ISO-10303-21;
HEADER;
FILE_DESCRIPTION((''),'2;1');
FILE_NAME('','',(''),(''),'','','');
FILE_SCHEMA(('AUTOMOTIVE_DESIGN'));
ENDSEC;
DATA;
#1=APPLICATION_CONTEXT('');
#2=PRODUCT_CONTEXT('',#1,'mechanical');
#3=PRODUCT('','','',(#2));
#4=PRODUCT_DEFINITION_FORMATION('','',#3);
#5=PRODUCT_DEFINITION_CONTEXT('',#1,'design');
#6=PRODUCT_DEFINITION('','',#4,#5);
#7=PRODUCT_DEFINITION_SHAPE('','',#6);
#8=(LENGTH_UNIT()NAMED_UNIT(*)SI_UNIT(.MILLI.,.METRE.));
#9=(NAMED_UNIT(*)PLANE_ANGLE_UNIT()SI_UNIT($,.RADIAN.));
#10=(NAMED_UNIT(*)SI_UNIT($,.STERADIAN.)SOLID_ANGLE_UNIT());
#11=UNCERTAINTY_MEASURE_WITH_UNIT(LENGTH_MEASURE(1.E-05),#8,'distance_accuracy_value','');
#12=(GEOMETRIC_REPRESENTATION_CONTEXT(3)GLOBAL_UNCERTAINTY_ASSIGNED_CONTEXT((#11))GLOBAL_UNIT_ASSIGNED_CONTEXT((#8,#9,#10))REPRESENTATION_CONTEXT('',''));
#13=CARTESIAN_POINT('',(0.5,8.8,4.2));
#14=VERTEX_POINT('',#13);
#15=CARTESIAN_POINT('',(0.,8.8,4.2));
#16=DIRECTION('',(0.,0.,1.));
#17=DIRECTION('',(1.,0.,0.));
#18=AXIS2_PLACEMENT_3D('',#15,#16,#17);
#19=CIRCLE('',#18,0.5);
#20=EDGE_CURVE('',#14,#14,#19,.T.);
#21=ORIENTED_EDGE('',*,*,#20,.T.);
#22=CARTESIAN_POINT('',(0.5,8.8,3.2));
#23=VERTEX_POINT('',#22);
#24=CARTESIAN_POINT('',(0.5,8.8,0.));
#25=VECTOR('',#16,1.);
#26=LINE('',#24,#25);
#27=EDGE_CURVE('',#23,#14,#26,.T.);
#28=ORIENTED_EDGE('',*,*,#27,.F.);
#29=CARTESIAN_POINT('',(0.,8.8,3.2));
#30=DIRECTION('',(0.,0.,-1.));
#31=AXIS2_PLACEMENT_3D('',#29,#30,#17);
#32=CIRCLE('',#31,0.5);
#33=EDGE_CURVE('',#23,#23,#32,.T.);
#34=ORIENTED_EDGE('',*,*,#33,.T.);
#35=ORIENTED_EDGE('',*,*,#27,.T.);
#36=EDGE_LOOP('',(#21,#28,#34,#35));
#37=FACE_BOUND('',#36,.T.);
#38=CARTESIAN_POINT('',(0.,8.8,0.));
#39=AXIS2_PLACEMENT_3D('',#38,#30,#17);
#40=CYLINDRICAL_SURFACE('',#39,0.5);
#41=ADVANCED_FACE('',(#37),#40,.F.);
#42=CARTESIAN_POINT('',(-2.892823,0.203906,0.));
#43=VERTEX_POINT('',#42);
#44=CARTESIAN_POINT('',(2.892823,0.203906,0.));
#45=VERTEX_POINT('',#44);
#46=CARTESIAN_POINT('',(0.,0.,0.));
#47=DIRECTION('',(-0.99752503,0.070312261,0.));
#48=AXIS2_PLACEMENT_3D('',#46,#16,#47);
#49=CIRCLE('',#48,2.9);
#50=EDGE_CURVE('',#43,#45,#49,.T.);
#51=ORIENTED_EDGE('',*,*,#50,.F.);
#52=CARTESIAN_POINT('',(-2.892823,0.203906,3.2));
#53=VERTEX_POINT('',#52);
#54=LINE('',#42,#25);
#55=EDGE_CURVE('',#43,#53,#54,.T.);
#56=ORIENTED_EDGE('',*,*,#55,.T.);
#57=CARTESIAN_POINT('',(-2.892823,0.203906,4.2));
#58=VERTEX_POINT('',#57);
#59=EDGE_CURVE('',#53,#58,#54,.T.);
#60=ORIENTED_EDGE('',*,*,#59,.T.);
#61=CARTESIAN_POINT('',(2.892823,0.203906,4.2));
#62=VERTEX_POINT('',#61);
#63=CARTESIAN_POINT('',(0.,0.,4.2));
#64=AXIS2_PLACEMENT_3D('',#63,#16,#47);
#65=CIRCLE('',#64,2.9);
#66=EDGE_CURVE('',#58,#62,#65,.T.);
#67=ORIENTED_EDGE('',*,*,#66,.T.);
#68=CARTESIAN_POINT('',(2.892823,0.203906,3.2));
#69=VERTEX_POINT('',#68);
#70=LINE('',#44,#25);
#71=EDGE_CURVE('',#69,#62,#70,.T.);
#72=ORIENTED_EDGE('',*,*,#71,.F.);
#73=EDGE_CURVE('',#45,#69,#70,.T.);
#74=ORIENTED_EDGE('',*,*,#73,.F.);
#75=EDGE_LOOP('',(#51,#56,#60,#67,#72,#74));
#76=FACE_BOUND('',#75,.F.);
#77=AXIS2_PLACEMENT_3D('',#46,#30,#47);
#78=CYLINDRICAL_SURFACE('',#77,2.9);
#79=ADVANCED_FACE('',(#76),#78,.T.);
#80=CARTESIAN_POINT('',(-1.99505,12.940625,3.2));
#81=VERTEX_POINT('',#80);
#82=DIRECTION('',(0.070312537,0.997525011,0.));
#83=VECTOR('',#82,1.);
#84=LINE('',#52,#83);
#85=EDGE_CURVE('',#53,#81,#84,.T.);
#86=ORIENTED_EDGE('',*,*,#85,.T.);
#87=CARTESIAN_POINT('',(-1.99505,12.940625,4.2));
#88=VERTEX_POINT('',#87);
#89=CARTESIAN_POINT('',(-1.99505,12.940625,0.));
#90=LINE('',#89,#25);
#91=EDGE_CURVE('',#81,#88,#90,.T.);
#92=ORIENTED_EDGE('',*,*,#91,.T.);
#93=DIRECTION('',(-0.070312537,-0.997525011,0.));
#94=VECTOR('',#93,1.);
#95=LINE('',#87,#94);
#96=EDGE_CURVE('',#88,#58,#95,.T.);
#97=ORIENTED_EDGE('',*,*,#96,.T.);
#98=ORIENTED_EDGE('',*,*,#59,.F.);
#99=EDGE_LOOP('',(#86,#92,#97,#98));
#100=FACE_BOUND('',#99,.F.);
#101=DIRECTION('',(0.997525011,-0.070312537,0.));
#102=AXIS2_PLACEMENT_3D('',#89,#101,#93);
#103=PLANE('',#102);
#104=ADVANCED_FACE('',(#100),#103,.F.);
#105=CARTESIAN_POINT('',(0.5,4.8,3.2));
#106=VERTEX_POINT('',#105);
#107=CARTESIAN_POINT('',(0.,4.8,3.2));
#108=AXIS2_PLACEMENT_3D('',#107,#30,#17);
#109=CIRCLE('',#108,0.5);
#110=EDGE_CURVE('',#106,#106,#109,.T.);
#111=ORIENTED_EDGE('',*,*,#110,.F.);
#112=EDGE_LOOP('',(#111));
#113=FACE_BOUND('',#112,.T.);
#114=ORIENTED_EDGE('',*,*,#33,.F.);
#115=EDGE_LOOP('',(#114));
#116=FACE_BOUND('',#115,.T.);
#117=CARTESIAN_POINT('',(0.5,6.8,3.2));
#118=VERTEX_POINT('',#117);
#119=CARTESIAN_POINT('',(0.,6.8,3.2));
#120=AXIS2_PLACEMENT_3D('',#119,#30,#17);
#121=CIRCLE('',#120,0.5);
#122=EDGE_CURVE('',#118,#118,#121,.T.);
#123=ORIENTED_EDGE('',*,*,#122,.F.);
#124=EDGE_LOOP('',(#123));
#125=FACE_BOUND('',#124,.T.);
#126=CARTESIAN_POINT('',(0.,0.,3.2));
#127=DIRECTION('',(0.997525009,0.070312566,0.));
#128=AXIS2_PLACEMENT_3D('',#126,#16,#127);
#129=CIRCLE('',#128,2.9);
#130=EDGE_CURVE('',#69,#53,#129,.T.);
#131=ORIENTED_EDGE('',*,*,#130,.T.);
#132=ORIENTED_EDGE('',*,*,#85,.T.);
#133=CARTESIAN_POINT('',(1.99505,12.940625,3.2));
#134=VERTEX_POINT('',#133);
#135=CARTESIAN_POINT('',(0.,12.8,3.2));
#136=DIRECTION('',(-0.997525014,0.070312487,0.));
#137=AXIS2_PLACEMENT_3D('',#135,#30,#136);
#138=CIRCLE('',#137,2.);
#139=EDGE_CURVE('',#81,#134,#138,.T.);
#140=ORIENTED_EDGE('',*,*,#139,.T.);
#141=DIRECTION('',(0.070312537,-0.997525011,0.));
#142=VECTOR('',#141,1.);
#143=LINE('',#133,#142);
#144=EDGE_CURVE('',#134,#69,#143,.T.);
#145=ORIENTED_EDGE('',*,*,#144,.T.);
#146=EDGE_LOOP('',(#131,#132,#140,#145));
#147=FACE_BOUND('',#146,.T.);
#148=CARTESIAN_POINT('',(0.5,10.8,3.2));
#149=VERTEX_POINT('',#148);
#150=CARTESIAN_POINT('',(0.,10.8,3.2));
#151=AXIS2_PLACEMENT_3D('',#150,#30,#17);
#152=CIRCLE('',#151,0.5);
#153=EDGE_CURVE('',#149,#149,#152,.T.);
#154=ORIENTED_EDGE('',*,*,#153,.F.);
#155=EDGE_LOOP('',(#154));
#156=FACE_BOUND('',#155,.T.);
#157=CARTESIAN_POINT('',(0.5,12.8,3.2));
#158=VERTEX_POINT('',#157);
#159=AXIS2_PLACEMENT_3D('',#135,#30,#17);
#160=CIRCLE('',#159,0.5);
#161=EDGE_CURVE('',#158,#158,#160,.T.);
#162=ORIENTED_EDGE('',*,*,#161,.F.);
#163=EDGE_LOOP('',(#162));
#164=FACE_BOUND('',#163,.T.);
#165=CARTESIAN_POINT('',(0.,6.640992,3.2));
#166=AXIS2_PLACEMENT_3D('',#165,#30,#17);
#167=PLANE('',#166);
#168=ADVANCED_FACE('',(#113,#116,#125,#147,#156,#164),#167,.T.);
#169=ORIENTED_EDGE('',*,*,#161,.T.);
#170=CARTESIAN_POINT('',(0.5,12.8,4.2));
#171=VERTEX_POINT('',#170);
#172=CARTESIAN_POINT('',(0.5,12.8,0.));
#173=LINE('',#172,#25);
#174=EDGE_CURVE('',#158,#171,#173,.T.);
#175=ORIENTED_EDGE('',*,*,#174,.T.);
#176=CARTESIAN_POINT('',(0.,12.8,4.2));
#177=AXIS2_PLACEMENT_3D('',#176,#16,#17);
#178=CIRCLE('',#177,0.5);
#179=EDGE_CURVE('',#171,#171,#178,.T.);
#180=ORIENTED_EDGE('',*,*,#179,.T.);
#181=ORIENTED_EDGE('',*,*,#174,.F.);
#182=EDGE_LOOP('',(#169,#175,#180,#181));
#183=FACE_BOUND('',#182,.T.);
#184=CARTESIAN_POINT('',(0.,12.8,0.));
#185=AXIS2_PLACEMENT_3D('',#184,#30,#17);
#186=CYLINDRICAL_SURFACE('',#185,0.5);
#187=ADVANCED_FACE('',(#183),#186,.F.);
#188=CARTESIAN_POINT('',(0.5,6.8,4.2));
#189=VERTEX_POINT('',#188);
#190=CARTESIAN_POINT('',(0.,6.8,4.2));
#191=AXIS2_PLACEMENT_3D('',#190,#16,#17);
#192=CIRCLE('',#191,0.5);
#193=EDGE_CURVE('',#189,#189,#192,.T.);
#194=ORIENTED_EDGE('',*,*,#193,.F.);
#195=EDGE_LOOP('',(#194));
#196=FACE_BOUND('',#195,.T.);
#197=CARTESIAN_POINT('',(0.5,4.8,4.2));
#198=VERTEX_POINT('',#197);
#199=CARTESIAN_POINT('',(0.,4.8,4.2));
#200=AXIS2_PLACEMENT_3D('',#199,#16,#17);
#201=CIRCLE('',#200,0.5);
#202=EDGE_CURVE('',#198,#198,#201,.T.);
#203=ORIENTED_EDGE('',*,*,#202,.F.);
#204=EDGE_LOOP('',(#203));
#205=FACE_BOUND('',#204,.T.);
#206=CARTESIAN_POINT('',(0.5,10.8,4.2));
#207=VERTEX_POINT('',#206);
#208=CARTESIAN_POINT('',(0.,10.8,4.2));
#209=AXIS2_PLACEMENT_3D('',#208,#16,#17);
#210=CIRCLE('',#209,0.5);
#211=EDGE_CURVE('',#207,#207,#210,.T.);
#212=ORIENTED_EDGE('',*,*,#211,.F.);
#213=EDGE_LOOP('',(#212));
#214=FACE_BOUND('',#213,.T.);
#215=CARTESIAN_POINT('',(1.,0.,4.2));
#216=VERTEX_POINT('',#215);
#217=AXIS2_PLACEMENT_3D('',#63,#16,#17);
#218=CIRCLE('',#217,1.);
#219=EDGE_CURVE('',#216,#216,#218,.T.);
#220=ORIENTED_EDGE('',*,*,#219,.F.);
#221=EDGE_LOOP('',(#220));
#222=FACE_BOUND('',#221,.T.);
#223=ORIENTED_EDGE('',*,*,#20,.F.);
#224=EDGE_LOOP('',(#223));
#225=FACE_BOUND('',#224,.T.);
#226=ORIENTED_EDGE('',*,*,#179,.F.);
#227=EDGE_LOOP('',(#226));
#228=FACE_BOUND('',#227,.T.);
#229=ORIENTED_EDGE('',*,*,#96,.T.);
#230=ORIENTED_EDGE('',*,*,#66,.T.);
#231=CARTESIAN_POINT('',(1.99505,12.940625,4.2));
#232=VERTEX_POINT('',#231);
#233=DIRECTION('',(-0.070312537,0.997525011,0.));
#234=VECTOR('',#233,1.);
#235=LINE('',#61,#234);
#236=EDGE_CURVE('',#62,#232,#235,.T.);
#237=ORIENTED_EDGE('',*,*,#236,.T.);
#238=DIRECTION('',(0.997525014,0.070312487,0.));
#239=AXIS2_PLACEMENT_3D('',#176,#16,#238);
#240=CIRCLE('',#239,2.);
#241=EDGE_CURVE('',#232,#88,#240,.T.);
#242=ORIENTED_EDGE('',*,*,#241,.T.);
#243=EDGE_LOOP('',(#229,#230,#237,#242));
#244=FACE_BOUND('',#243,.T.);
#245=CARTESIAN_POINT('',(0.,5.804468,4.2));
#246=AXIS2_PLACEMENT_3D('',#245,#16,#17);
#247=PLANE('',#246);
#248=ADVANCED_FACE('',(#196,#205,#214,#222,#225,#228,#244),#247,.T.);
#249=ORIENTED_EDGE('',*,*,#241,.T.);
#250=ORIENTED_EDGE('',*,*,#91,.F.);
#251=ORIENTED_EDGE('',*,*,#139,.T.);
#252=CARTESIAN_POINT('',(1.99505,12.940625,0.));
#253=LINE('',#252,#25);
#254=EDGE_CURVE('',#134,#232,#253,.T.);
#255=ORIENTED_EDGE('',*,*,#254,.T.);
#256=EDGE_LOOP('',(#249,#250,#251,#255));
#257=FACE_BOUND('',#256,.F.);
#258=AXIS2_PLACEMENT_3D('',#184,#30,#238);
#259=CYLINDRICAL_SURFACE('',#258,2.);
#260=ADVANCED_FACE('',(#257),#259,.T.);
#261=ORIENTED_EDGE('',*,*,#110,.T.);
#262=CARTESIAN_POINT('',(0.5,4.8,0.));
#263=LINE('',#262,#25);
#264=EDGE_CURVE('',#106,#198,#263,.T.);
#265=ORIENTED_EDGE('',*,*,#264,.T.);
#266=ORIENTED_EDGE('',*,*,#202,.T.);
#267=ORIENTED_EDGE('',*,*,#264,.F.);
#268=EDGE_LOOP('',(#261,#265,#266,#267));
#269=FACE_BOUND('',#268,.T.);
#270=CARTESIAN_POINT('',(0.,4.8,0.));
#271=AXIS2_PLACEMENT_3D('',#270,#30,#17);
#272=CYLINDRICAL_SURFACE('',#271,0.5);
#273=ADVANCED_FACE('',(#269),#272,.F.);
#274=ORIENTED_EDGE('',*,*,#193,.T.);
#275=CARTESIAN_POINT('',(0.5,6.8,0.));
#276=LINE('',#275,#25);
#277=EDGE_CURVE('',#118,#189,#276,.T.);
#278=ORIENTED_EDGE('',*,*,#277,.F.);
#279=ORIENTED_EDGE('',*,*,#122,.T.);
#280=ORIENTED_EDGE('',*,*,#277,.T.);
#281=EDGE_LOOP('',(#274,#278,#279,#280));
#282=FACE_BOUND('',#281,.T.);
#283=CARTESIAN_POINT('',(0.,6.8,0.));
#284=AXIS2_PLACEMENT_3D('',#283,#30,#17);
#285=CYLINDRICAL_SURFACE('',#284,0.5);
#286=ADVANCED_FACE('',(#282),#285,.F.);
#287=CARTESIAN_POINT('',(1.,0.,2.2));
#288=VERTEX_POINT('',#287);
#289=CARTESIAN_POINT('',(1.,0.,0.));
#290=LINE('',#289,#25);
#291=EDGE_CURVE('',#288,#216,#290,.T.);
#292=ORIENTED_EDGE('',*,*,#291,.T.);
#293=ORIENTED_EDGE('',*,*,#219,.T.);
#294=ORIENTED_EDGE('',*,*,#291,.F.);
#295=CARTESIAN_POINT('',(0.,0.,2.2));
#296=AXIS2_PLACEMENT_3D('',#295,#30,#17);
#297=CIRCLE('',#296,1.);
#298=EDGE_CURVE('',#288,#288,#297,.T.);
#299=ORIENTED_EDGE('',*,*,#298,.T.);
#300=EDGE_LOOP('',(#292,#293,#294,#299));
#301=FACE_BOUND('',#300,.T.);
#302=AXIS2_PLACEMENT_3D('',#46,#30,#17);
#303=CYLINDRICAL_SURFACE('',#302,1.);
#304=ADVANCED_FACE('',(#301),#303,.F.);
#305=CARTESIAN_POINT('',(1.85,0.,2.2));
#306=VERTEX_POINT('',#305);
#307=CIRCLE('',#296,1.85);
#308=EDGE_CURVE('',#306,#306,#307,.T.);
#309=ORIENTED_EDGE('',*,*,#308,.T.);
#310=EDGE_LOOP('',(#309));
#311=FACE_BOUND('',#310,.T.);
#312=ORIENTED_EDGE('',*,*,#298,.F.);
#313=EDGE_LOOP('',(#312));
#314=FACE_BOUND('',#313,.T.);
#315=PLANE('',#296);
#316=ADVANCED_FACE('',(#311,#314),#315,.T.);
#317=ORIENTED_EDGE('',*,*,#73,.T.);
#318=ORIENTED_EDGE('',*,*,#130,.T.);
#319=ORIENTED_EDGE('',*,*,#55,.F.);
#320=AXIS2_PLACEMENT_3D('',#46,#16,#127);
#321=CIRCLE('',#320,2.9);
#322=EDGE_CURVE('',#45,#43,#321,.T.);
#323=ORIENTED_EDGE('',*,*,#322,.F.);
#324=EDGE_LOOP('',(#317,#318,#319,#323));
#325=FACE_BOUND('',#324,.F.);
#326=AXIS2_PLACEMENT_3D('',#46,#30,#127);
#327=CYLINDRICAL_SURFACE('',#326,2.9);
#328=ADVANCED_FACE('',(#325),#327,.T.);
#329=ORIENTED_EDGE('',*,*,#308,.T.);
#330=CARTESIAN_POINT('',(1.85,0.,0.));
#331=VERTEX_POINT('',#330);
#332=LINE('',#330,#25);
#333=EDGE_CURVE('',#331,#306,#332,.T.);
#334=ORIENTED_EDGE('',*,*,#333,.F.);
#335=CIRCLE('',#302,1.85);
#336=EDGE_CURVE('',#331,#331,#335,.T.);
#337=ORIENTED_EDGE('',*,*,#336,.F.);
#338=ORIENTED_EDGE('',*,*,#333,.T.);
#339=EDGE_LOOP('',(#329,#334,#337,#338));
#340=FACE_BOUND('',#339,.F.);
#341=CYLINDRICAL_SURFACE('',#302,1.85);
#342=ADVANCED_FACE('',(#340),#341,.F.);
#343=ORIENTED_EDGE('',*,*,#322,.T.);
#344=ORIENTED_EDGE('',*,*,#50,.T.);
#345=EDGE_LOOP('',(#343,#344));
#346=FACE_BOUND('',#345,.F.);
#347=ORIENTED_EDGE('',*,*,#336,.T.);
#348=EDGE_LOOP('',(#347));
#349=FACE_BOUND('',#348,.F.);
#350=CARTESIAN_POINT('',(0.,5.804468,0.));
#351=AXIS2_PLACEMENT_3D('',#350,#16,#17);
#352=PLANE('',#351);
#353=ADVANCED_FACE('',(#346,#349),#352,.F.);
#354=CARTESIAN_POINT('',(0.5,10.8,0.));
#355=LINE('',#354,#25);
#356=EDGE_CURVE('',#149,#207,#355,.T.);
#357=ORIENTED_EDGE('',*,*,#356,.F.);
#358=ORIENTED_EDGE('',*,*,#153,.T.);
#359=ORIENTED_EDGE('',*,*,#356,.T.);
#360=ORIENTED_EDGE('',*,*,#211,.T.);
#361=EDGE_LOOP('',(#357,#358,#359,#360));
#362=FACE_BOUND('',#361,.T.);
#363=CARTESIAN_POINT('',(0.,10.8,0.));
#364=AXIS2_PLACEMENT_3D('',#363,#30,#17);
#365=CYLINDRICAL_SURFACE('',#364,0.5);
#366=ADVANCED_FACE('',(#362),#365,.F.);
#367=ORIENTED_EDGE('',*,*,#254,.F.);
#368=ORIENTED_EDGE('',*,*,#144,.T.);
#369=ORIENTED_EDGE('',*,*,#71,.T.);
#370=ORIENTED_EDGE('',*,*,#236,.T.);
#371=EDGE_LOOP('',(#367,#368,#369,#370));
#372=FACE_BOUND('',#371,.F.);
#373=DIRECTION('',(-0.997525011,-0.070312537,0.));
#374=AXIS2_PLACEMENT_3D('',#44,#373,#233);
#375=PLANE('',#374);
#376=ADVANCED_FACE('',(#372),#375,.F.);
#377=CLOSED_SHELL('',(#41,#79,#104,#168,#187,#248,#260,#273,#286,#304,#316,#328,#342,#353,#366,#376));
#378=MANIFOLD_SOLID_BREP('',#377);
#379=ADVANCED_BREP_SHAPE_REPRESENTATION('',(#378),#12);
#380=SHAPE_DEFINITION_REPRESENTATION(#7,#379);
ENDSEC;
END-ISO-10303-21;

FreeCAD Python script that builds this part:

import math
import FreeCAD as App
import Part
import Sketcher

V = App.Vector

doc = App.newDocument("Part")
body = doc.addObject("PartDesign::Body", "Body")

# Sketch on XY plane
sketch1 = body.newObject("Sketcher::SketchObject", "Sketch")
sketch1.AttachmentSupport = (doc.getObject("XY_Plane"), [""])
sketch1.MapMode = "FlatFace"
sketch1.addGeometry([
    Part.LineSegment(V(-2, 12.9, 0), V(-2.9, 0.2, 0)),  # 0
    Part.ArcOfCircle(Part.Circle(V(0, 0, 0), V(0, 0, 1), 2.9), math.radians(176), math.radians(364)),  # 1
    Part.LineSegment(V(2.9, 0.2, 0), V(2, 12.9, 0)),  # 2
    Part.ArcOfCircle(Part.Circle(V(0, 12.8, 0), V(0, 0, 1), 2), math.radians(4), math.radians(176)),  # 3
    Part.Circle(V(0, 0, 0), V(0, 0, 1), 1),  # 4
    Part.Circle(V(0, 4.8, 0), V(0, 0, 1), 0.5),  # 5
    Part.Circle(V(0, 6.8, 0), V(0, 0, 1), 0.5),  # 6
    Part.Circle(V(0, 8.8, 0), V(0, 0, 1), 0.5),  # 7
    Part.Circle(V(0, 10.8, 0), V(0, 0, 1), 0.5),  # 8
    Part.Circle(V(0, 12.8, 0), V(0, 0, 1), 0.5),  # 9
], False)
sketch1.addConstraint([
    Sketcher.Constraint("Tangent", 0, 2, 1, 1),
    Sketcher.Constraint("Tangent", 1, 2, 2, 1),
    Sketcher.Constraint("Tangent", 2, 2, 3, 1),
    Sketcher.Constraint("Tangent", 3, 2, 0, 1),
    Sketcher.Constraint("Coincident", 1, 3, -1, 1),
    Sketcher.Constraint("Coincident", 4, 3, -1, 1),
    Sketcher.Constraint("Coincident", 9, 3, 3, 3),
    Sketcher.Constraint("Equal", 5, 6),
    Sketcher.Constraint("Equal", 6, 7),
    Sketcher.Constraint("Equal", 7, 8),
    Sketcher.Constraint("Equal", 8, 9),
    Sketcher.Constraint("PointOnObject", 3, 3, -2),
    Sketcher.Constraint("PointOnObject", 5, 3, -2),
    Sketcher.Constraint("PointOnObject", 6, 3, -2),
    Sketcher.Constraint("PointOnObject", 7, 3, -2),
    Sketcher.Constraint("PointOnObject", 8, 3, -2),
    Sketcher.Constraint("Diameter", 4, 2.0),
    Sketcher.Constraint("Diameter", 5, 1.0),
    Sketcher.Constraint("Radius", 3, 2.0),
    Sketcher.Constraint("Radius", 1, 2.9),
    Sketcher.Constraint("DistanceY", 5, 3, 3, 3, 8.0),
    Sketcher.Constraint("DistanceY", 5, 3, 6, 3, 2.0),
    Sketcher.Constraint("DistanceY", 6, 3, 7, 3, 2.0),
    Sketcher.Constraint("DistanceY", 7, 3, 8, 3, 2.0),
    Sketcher.Constraint("DistanceY", -1, 1, 3, 3, 12.8),
])
pad1 = body.newObject("PartDesign::Pad", "Pad")
pad1.Profile = sketch1
pad1.Length = 4.2

# Sketch on XY plane
sketch2 = body.newObject("Sketcher::SketchObject", "Sketch001")
sketch2.AttachmentSupport = (doc.getObject("XY_Plane"), [""])
sketch2.MapMode = "FlatFace"
sketch2.addGeometry([
    Part.ArcOfCircle(Part.Circle(V(0, 0, 0), V(0, 0, 1), 2.9), math.radians(4), math.radians(176)),
    Part.LineSegment(V(-2.9, 0.2, 0), V(-2, 12.9, 0)),
    Part.ArcOfCircle(Part.Circle(V(0, 12.8, 0), V(0, 0, 1), 2), math.radians(4), math.radians(176)),
    Part.LineSegment(V(2, 12.9, 0), V(2.9, 0.2, 0)),
], False)
sketch2.addConstraint([
    Sketcher.Constraint("Tangent", 0, 2, 1, 1),
    Sketcher.Constraint("Tangent", 1, 2, 2, 2),
    Sketcher.Constraint("Tangent", 2, 1, 3, 1),
    Sketcher.Constraint("Tangent", 3, 2, 0, 1),
    Sketcher.Constraint("Coincident", 0, 3, -1, 1),
    Sketcher.Constraint("PointOnObject", 2, 3, -2),
    Sketcher.Constraint("Radius", 2, 2.0),
    Sketcher.Constraint("Radius", 0, 2.9),
    Sketcher.Constraint("DistanceY", -1, 1, 2, 3, 12.8),
])
pocket1 = body.newObject("PartDesign::Pocket", "Pocket")
pocket1.Profile = sketch2
pocket1.Length = 3.2
pocket1.Reversed = True

# Sketch on XY plane
sketch3 = body.newObject("Sketcher::SketchObject", "Sketch002")
sketch3.AttachmentSupport = (doc.getObject("XY_Plane"), [""])
sketch3.MapMode = "FlatFace"
sketch3.addGeometry([
    Part.Circle(V(0, 0, 0), V(0, 0, 1), 1.9),
    Part.Circle(V(0, 0, 0), V(0, 0, 1), 1),
], False)
sketch3.addConstraint([
    Sketcher.Constraint("Coincident", 0, 3, -1, 1),
    Sketcher.Constraint("Coincident", 1, 3, -1, 1),
    Sketcher.Constraint("Diameter", 1, 2.0),
    Sketcher.Constraint("Diameter", 0, 3.7),
])
pocket2 = body.newObject("PartDesign::Pocket", "Pocket001")
pocket2.Profile = sketch3
pocket2.Length = 2.2
pocket2.Reversed = True

doc.recompute()
